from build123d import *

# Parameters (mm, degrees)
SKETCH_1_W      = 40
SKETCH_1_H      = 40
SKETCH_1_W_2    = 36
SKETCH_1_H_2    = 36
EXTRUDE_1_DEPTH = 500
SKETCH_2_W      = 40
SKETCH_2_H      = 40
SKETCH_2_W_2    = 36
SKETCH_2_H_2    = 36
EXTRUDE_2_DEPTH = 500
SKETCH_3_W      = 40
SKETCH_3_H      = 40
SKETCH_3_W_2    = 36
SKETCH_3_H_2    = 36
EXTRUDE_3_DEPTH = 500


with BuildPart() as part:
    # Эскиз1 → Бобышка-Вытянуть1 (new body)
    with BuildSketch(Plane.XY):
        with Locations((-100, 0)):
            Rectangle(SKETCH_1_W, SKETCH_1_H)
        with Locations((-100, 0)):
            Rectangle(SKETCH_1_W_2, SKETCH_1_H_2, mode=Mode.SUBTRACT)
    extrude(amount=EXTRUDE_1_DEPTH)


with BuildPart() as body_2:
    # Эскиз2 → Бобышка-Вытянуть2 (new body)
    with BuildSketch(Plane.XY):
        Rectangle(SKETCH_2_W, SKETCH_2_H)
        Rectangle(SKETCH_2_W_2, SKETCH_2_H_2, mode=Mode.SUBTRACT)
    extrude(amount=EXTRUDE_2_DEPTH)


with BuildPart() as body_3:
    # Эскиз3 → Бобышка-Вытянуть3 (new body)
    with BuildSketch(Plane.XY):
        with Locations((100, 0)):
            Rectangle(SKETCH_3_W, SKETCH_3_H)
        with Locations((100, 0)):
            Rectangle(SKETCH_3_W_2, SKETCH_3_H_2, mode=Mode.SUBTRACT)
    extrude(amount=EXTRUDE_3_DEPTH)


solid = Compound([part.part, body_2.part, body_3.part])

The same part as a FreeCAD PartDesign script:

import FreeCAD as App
import Part
import Sketcher


def add_polygon(sketch, points):
    """Adds a closed chain of lines whose ends are joined by coincident constraints."""
    first, n = sketch.GeometryCount, len(points)
    for a, b in zip(points, points[1:] + points[:1]):
        sketch.addGeometry(Part.LineSegment(App.Vector(*a, 0), App.Vector(*b, 0)), False)
    for i in range(n):
        sketch.addConstraint(Sketcher.Constraint("Coincident", first + i, 2, first + (i + 1) % n, 1))

doc = App.newDocument("Part")
params = doc.addObject("Spreadsheet::Sheet", "Params")
for row, (alias, value) in enumerate([
    ("sketch1_width", "40 mm"),
    ("sketch1_width2", "36 mm"),
    ("pad1_length", "500 mm"),
    ("sketch2_width", "40 mm"),
    ("sketch2_width2", "36 mm"),
    ("pad2_length", "500 mm"),
    ("sketch3_width", "40 mm"),
    ("sketch3_width2", "36 mm"),
    ("pad3_length", "500 mm"),
], start=1):
    params.set(f"A{row}", alias)
    params.set(f"B{row}", "=" + value)
    params.setAlias(f"B{row}", alias)

body = doc.addObject("PartDesign::Body", "Body")

# Sketch on XY plane
sketch1 = doc.addObject("Sketcher::SketchObject", "Sketch")
body.addObject(sketch1)
sketch1.AttachmentSupport = (doc.XY_Plane, [""])
sketch1.MapMode = "FlatFace"
add_polygon(sketch1, [(-120, 20), (-120, -20), (-80, -20), (-80, 20)])  # lines 0-3
add_polygon(sketch1, [(-82, -18), (-118, -18), (-118, 18), (-82, 18)])  # lines 4-7
sketch1.addConstraint(Sketcher.Constraint("Vertical", 0))
sketch1.addConstraint(Sketcher.Constraint("Horizontal", 1))
sketch1.addConstraint(Sketcher.Constraint("Vertical", 2))
sketch1.addConstraint(Sketcher.Constraint("Horizontal", 3))
sketch1.addConstraint(Sketcher.Constraint("Horizontal", 4))
sketch1.addConstraint(Sketcher.Constraint("Vertical", 5))
sketch1.addConstraint(Sketcher.Constraint("Horizontal", 6))
sketch1.addConstraint(Sketcher.Constraint("Vertical", 7))
sketch1.addConstraint(Sketcher.Constraint("Equal", 3, 0))
sketch1.addConstraint(Sketcher.Constraint("Equal", 6, 5))
sketch1.addConstraint(Sketcher.Constraint("DistanceX", 1, 1, 1, 2, 40.0))
sketch1.addConstraint(Sketcher.Constraint("DistanceX", 4, 2, 4, 1, 36.0))
sketch1.addConstraint(Sketcher.Constraint("DistanceX", 0, 2, -1, 1, 120.0))
sketch1.addConstraint(Sketcher.Constraint("DistanceY", 0, 2, -1, 1, 20.0))
sketch1.addConstraint(Sketcher.Constraint("DistanceX", 4, 2, -1, 1, 118.0))
sketch1.addConstraint(Sketcher.Constraint("DistanceY", 4, 2, -1, 1, 18.0))
sketch1.setExpression("Constraints[18]", "Params.sketch1_width")
sketch1.setExpression("Constraints[19]", "Params.sketch1_width2")
pad1 = doc.addObject("PartDesign::Pad", "Pad")
body.addObject(pad1)
pad1.Profile = sketch1
pad1.setExpression("Length", "Params.pad1_length")
body2 = doc.addObject("PartDesign::Body", "Body001")

# Sketch on XY plane
sketch2 = doc.addObject("Sketcher::SketchObject", "Sketch001")
body2.addObject(sketch2)
sketch2.AttachmentSupport = (doc.getObject("XY_Plane001"), [""])
sketch2.MapMode = "FlatFace"
add_polygon(sketch2, [(-20, 20), (-20, -20), (20, -20), (20, 20)])  # lines 0-3
add_polygon(sketch2, [(18, -18), (-18, -18), (-18, 18), (18, 18)])  # lines 4-7
sketch2.addConstraint(Sketcher.Constraint("Vertical", 0))
sketch2.addConstraint(Sketcher.Constraint("Horizontal", 1))
sketch2.addConstraint(Sketcher.Constraint("Vertical", 2))
sketch2.addConstraint(Sketcher.Constraint("Horizontal", 3))
sketch2.addConstraint(Sketcher.Constraint("Horizontal", 4))
sketch2.addConstraint(Sketcher.Constraint("Vertical", 5))
sketch2.addConstraint(Sketcher.Constraint("Horizontal", 6))
sketch2.addConstraint(Sketcher.Constraint("Vertical", 7))
sketch2.addConstraint(Sketcher.Constraint("Symmetric", 0, 2, 2, 2, -1, 1))
sketch2.addConstraint(Sketcher.Constraint("Symmetric", 4, 2, 6, 2, -1, 1))
sketch2.addConstraint(Sketcher.Constraint("Equal", 3, 0))
sketch2.addConstraint(Sketcher.Constraint("Equal", 6, 5))
sketch2.addConstraint(Sketcher.Constraint("DistanceX", 1, 1, 1, 2, 40.0))
sketch2.addConstraint(Sketcher.Constraint("DistanceX", 4, 2, 4, 1, 36.0))
sketch2.setExpression("Constraints[20]", "Params.sketch2_width")
sketch2.setExpression("Constraints[21]", "Params.sketch2_width2")
pad2 = doc.addObject("PartDesign::Pad", "Pad001")
body2.addObject(pad2)
pad2.Profile = sketch2
pad2.setExpression("Length", "Params.pad2_length")
body3 = doc.addObject("PartDesign::Body", "Body002")

# Sketch on XY plane
sketch3 = doc.addObject("Sketcher::SketchObject", "Sketch002")
body3.addObject(sketch3)
sketch3.AttachmentSupport = (doc.getObject("XY_Plane002"), [""])
sketch3.MapMode = "FlatFace"
add_polygon(sketch3, [(80, 20), (80, -20), (120, -20), (120, 20)])  # lines 0-3
add_polygon(sketch3, [(118, -18), (82, -18), (82, 18), (118, 18)])  # lines 4-7
sketch3.addConstraint(Sketcher.Constraint("Vertical", 0))
sketch3.addConstraint(Sketcher.Constraint("Horizontal", 1))
sketch3.addConstraint(Sketcher.Constraint("Vertical", 2))
sketch3.addConstraint(Sketcher.Constraint("Horizontal", 3))
sketch3.addConstraint(Sketcher.Constraint("Horizontal", 4))
sketch3.addConstraint(Sketcher.Constraint("Vertical", 5))
sketch3.addConstraint(Sketcher.Constraint("Horizontal", 6))
sketch3.addConstraint(Sketcher.Constraint("Vertical", 7))
sketch3.addConstraint(Sketcher.Constraint("Equal", 3, 0))
sketch3.addConstraint(Sketcher.Constraint("Equal", 6, 5))
sketch3.addConstraint(Sketcher.Constraint("DistanceX", 1, 1, 1, 2, 40.0))
sketch3.addConstraint(Sketcher.Constraint("DistanceX", 4, 2, 4, 1, 36.0))
sketch3.addConstraint(Sketcher.Constraint("DistanceX", -1, 1, 0, 2, 80.0))
sketch3.addConstraint(Sketcher.Constraint("DistanceY", 0, 2, -1, 1, 20.0))
sketch3.addConstraint(Sketcher.Constraint("DistanceX", -1, 1, 4, 2, 82.0))
sketch3.addConstraint(Sketcher.Constraint("DistanceY", 4, 2, -1, 1, 18.0))
sketch3.setExpression("Constraints[18]", "Params.sketch3_width")
sketch3.setExpression("Constraints[19]", "Params.sketch3_width2")
pad3 = doc.addObject("PartDesign::Pad", "Pad002")
body3.addObject(pad3)
pad3.Profile = sketch3
pad3.setExpression("Length", "Params.pad3_length")

doc.recompute()
